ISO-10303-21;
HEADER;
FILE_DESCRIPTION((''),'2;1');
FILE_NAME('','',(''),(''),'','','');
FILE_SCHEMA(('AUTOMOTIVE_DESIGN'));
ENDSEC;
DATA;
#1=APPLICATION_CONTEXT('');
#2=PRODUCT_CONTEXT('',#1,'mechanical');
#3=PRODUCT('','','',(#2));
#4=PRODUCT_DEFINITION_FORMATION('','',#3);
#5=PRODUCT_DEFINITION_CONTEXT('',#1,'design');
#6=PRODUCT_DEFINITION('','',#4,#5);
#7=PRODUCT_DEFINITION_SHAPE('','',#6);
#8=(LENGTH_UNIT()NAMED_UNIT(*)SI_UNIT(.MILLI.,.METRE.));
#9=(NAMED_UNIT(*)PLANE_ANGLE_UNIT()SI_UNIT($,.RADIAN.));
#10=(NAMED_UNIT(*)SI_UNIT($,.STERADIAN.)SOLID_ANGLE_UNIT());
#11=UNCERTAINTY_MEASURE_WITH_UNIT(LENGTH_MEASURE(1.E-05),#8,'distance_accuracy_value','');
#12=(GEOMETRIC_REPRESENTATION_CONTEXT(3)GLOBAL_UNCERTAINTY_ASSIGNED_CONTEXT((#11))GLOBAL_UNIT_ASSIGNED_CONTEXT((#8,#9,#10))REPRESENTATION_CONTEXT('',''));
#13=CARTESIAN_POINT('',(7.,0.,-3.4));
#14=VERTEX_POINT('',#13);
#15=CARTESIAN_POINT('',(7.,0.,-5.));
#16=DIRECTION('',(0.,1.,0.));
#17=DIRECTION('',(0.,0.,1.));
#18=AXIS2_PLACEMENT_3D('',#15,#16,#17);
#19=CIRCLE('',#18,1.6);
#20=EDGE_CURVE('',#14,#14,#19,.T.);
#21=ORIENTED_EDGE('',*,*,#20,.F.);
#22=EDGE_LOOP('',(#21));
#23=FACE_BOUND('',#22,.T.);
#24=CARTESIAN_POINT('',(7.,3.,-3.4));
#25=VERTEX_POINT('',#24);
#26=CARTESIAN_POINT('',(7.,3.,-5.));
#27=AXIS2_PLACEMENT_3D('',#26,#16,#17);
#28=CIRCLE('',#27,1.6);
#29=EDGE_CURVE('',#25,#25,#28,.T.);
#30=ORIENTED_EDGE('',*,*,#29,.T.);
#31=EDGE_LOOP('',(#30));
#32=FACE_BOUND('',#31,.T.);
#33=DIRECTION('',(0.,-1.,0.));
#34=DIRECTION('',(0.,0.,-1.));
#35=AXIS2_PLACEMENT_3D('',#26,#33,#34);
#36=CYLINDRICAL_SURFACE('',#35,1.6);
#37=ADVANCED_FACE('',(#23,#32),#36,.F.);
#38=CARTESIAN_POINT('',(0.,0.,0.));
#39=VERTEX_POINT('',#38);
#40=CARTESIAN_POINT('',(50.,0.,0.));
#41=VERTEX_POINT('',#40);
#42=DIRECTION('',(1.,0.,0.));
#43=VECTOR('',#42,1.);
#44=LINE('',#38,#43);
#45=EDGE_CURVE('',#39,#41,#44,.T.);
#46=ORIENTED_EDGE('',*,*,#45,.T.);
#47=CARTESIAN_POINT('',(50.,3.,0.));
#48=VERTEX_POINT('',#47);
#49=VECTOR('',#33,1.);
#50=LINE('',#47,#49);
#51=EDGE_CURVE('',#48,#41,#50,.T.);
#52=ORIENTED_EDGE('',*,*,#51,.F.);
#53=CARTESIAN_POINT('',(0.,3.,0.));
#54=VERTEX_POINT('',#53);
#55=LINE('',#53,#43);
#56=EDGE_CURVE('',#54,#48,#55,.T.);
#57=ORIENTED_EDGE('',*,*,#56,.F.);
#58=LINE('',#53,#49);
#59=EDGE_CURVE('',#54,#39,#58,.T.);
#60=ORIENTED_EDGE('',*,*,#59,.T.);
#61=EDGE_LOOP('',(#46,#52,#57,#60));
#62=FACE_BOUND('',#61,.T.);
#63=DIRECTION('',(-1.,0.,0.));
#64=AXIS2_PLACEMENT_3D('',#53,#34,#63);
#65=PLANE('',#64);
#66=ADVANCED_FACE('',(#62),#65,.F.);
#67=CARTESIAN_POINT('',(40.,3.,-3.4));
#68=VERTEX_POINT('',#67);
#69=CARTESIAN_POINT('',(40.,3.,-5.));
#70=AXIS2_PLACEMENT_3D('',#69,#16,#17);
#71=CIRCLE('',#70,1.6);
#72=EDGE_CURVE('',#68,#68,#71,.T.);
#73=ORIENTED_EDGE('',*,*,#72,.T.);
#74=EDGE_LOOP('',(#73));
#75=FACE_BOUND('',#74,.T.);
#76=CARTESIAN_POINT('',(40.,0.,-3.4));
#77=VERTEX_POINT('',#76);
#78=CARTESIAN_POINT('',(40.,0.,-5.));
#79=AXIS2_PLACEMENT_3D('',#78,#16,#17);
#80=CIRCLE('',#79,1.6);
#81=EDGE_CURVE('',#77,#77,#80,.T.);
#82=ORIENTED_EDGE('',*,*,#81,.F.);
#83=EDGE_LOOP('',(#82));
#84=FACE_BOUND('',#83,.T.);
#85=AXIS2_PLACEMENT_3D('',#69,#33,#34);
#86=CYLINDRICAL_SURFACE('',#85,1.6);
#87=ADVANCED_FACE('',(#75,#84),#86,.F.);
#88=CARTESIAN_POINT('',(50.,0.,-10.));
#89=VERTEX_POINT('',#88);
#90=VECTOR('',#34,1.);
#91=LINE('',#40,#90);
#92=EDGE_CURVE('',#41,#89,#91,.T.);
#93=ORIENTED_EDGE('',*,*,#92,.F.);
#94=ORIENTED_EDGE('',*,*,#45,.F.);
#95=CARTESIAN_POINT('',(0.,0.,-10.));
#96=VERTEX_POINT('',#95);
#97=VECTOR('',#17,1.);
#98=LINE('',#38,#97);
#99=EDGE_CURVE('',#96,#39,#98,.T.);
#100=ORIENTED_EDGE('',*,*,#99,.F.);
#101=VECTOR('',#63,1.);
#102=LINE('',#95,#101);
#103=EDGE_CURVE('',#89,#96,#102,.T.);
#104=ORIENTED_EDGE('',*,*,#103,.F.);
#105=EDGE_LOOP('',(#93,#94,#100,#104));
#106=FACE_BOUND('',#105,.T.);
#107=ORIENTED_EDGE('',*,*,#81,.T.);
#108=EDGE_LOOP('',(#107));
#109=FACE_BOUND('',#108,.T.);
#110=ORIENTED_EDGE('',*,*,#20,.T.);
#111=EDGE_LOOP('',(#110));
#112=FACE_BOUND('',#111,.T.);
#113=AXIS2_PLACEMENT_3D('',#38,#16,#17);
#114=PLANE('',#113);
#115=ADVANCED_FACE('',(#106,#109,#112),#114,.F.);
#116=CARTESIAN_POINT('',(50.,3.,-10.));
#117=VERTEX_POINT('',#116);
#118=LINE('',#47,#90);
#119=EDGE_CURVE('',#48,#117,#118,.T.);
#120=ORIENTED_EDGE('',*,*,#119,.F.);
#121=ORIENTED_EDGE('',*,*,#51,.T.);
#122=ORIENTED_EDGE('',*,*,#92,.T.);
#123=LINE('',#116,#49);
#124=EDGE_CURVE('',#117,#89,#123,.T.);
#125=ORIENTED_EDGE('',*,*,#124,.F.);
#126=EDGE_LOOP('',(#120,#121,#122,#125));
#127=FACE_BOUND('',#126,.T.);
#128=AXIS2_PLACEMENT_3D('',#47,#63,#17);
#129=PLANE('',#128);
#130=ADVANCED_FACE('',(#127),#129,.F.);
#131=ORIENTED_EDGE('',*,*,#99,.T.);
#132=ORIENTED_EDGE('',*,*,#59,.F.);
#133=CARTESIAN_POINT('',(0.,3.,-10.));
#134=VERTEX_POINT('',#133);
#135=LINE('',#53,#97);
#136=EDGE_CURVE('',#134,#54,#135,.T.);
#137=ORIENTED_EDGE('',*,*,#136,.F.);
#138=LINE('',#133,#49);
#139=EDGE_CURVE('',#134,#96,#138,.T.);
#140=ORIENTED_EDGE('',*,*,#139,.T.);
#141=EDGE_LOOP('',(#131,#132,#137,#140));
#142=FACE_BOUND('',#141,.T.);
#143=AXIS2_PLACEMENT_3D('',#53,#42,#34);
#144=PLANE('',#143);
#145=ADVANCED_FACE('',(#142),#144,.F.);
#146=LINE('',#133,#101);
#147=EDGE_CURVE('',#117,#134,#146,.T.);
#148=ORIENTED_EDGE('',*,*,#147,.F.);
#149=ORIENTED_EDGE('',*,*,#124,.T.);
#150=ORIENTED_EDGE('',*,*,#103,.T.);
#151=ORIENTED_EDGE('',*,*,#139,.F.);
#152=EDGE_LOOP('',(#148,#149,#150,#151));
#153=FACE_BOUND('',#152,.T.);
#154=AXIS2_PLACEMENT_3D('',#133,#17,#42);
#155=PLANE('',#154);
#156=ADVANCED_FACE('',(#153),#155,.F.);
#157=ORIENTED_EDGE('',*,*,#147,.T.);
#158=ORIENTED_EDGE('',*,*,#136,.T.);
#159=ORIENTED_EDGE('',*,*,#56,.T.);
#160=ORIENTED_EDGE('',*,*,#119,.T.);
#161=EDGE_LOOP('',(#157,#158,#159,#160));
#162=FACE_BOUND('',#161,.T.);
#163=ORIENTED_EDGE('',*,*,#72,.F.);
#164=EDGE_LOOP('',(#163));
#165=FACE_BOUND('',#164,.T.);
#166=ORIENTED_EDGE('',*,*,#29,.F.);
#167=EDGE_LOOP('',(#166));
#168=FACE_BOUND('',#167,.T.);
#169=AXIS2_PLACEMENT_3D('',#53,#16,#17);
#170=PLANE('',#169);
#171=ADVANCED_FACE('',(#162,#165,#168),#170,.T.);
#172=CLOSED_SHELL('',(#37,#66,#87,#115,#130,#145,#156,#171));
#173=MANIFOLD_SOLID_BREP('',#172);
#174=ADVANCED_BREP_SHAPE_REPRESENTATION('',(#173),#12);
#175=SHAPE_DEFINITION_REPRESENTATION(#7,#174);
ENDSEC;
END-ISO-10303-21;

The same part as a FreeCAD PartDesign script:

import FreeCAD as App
import Part
import Sketcher
from FreeCAD import Vector
Q = App.Units.Quantity

doc = App.newDocument("Part")
body = doc.addObject("PartDesign::Body", "Body")

# Sketch on XZ plane
sketch1 = body.newObject("Sketcher::SketchObject", "Sketch")
sketch1.AttachmentSupport = (doc.getObject("XZ_Plane"), [""])
sketch1.MapMode = "FlatFace"
sketch1.addGeometry([
    Part.LineSegment(Vector(0, -10, 0), Vector(0, 0, 0)),  # 0
    Part.LineSegment(Vector(0, 0, 0), Vector(50, 0, 0)),  # 1
    Part.LineSegment(Vector(50, 0, 0), Vector(50, -10, 0)),  # 2
    Part.LineSegment(Vector(50, -10, 0), Vector(0, -10, 0)),  # 3
    Part.Circle(Vector(7, -5, 0), Vector(0, 0, 1), 1.6),  # 4
    Part.Circle(Vector(40, -5, 0), Vector(0, 0, 1), 1.6),  # 5
], False)
sketch1.addConstraint([
    Sketcher.Constraint("Coincident", 0, 2, 1, 1),
    Sketcher.Constraint("Coincident", 1, 2, 2, 1),
    Sketcher.Constraint("Coincident", 2, 2, 3, 1),
    Sketcher.Constraint("Coincident", 3, 2, 0, 1),
    Sketcher.Constraint("Vertical", 0),
    Sketcher.Constraint("Horizontal", 1),
    Sketcher.Constraint("Vertical", 2),
    Sketcher.Constraint("Horizontal", 3),
    Sketcher.Constraint("Coincident", 0, 2, -1, 1),
    Sketcher.Constraint("Equal", 4, 5),
    Sketcher.Constraint("Horizontal", 4, 3, 5, 3),
    Sketcher.Constraint("Diameter", 4, Q("3.2 mm")),
    Sketcher.Constraint("DistanceX", 1, 1, 1, 2, Q("50 mm")),
    Sketcher.Constraint("DistanceY", 0, 1, 0, 2, Q("10 mm")),
    Sketcher.Constraint("DistanceX", -1, 1, 4, 3, Q("7 mm")),
    Sketcher.Constraint("DistanceY", 4, 3, -1, 1, Q("5 mm")),
    Sketcher.Constraint("DistanceX", -1, 1, 5, 3, Q("40 mm")),
])
pad1 = body.newObject("PartDesign::Pad", "Pad")
pad1.Profile = sketch1
pad1.Length = 3
pad1.Reversed = True

doc.recompute()
